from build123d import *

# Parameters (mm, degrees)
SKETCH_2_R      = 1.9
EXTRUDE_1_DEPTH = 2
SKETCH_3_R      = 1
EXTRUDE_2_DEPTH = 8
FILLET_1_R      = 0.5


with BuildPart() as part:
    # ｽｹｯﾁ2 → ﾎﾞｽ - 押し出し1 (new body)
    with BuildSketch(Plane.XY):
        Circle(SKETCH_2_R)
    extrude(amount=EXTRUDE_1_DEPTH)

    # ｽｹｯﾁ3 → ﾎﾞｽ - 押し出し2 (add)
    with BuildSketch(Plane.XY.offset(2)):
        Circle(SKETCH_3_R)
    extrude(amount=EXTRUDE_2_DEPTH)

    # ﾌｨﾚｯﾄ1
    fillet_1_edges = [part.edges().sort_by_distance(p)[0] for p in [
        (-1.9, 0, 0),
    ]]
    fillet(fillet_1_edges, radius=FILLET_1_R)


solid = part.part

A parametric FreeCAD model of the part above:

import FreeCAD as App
import Part
import Sketcher
Q = App.Units.Quantity


def edges_at(feature, points):
    """Names of the edges that pass closest to the given points."""
    edges = feature.Shape.Edges
    near = lambda p: min(range(len(edges)), key=lambda i: edges[i].distToShape(Part.Vertex(*p))[0])
    return sorted({f"Edge{near(p) + 1}" for p in points})

doc = App.newDocument("Part")
body = doc.addObject("PartDesign::Body", "Body")

# Sketch on XY plane
sketch1 = body.newObject("Sketcher::SketchObject", "Sketch")
sketch1.AttachmentSupport = (doc.getObject("XY_Plane"), [""])
sketch1.MapMode = "FlatFace"
sketch1.addGeometry(Part.Circle(App.Vector(0, 0, 0), App.Vector(0, 0, 1), 1.9), False)
sketch1.addConstraint(Sketcher.Constraint("Coincident", 0, 3, -1, 1))
sketch1.addConstraint(Sketcher.Constraint("Diameter", 0, Q("3.8 mm")))
pad1 = body.newObject("PartDesign::Pad", "Pad")
pad1.Profile = sketch1
pad1.Length = 2

# Sketch on XY plane
sketch2 = body.newObject("Sketcher::SketchObject", "Sketch001")
sketch2.AttachmentSupport = (doc.getObject("XY_Plane"), [""])
sketch2.MapMode = "FlatFace"
sketch2.AttachmentOffset = App.Placement(App.Vector(0, 0, 2), App.Rotation())
sketch2.addGeometry(Part.Circle(App.Vector(0, 0, 0), App.Vector(0, 0, 1), 1), False)
sketch2.addConstraint(Sketcher.Constraint("Coincident", 0, 3, -1, 1))
sketch2.addConstraint(Sketcher.Constraint("Diameter", 0, Q("2 mm")))
pad2 = body.newObject("PartDesign::Pad", "Pad001")
pad2.Profile = sketch2
pad2.Length = 8
doc.recompute()

fillet = body.newObject("PartDesign::Fillet", "Fillet")
fillet.Base = (pad2, edges_at(pad2, [(-1.9, 0, 0)]))
fillet.Radius = 0.5

doc.recompute()
